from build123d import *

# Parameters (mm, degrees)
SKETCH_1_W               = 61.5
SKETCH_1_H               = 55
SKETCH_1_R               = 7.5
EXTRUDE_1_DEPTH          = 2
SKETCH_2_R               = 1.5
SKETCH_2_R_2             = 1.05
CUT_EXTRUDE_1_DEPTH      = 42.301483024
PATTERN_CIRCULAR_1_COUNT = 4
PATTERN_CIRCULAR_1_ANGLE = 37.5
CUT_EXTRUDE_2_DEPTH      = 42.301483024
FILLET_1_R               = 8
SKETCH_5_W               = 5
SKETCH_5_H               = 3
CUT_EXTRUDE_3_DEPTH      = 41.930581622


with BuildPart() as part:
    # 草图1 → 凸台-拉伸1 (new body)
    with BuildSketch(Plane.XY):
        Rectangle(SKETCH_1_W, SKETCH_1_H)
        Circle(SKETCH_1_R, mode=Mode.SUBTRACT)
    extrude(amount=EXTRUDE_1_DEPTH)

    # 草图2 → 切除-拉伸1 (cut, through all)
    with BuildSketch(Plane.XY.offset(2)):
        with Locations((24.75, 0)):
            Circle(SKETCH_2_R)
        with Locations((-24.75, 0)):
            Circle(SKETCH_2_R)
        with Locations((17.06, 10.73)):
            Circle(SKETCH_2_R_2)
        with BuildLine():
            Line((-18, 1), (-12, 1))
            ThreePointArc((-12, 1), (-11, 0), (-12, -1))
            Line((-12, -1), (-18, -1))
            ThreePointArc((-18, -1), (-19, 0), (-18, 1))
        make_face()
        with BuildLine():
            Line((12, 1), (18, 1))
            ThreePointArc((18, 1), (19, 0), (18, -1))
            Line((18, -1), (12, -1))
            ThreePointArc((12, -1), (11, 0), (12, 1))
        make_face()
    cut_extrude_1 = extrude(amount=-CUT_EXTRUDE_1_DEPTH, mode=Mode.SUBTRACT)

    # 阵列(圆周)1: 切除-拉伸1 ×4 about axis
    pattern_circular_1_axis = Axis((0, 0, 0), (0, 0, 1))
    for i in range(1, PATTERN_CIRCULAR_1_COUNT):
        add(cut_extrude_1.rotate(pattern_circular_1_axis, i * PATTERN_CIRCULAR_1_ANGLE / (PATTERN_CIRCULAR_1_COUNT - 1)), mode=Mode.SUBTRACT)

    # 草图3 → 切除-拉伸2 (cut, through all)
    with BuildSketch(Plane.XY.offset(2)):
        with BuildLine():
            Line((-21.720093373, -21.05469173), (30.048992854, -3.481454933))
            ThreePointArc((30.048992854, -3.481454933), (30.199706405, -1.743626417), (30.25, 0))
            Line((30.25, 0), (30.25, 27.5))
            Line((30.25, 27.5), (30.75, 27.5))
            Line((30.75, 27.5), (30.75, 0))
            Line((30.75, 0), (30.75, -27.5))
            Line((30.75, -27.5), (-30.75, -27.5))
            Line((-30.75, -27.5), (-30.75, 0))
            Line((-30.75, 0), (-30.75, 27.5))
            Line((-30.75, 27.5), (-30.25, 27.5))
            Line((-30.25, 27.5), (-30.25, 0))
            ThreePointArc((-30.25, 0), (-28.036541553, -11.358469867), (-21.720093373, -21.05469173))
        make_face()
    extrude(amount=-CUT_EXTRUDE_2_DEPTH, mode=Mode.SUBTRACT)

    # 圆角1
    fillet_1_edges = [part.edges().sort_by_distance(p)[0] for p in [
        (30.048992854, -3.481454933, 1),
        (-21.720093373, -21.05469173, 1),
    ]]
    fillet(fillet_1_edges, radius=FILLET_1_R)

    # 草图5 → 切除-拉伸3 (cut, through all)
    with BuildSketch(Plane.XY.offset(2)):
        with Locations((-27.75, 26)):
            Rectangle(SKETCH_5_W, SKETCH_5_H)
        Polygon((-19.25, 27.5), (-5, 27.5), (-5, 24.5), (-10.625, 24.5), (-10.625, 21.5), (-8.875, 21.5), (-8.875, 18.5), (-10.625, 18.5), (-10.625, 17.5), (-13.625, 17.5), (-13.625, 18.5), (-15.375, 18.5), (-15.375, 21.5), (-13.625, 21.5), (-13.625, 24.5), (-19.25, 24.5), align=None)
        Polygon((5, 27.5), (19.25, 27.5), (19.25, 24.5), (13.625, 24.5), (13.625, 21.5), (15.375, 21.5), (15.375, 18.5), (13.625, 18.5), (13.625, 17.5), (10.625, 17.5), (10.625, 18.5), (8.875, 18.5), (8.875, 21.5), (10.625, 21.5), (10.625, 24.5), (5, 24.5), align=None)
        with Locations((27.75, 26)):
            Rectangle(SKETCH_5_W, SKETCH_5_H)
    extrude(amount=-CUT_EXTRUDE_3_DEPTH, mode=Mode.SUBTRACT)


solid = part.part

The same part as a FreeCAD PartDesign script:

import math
import FreeCAD as App
import Part
import Sketcher

V = App.Vector
Q = App.Units.Quantity


def edges_at(feature, points):
    """Names of the edges that pass closest to the given points."""
    edges = feature.Shape.Edges
    near = lambda p: min(range(len(edges)), key=lambda i: edges[i].distToShape(Part.Vertex(*p))[0])
    return sorted({f"Edge{near(p) + 1}" for p in points})

doc = App.newDocument("Part")
body = doc.addObject("PartDesign::Body", "Body")

sketch1 = doc.addObject("Sketcher::SketchObject", "Sketch")
body.addObject(sketch1)
sketch1.AttachmentSupport = (doc.XY_Plane, [""])
sketch1.MapMode = "FlatFace"
sketch1.addGeometry(Part.LineSegment(V(-31, 28, 0), V(-31, -28, 0)), False)
sketch1.addGeometry(Part.LineSegment(V(-31, -28, 0), V(31, -28, 0)), False)
sketch1.addGeometry(Part.LineSegment(V(31, -28, 0), V(31, 28, 0)), False)
sketch1.addGeometry(Part.LineSegment(V(31, 28, 0), V(-31, 28, 0)), False)
sketch1.addGeometry(Part.Circle(V(0, 0, 0), V(0, 0, 1), 8), False)
sketch1.addConstraint(Sketcher.Constraint("Coincident", 0, 2, 1, 1))
sketch1.addConstraint(Sketcher.Constraint("Coincident", 1, 2, 2, 1))
sketch1.addConstraint(Sketcher.Constraint("Coincident", 2, 2, 3, 1))
sketch1.addConstraint(Sketcher.Constraint("Coincident", 3, 2, 0, 1))
sketch1.addConstraint(Sketcher.Constraint("Vertical", 0))
sketch1.addConstraint(Sketcher.Constraint("Horizontal", 1))
sketch1.addConstraint(Sketcher.Constraint("Vertical", 2))
sketch1.addConstraint(Sketcher.Constraint("Horizontal", 3))
sketch1.addConstraint(Sketcher.Constraint("Coincident", 4, 3, -1, 1))
sketch1.addConstraint(Sketcher.Constraint("Symmetric", 0, 2, 2, 2, -1, 1))
sketch1.addConstraint(Sketcher.Constraint("Diameter", 4, Q("15 mm")))
sketch1.addConstraint(Sketcher.Constraint("DistanceY", 0, 2, 0, 1, Q("55 mm")))
sketch1.addConstraint(Sketcher.Constraint("DistanceX", 1, 1, 1, 2, Q("61.5 mm")))
pad1 = doc.addObject("PartDesign::Pad", "Pad")
body.addObject(pad1)
pad1.Profile = sketch1
pad1.Length = 2

sketch2 = doc.addObject("Sketcher::SketchObject", "Sketch001")
body.addObject(sketch2)
sketch2.AttachmentSupport = (doc.XY_Plane, [""])
sketch2.MapMode = "FlatFace"
sketch2.AttachmentOffset = App.Placement(V(0, 0, 2), App.Rotation())
sketch2.addGeometry(Part.Circle(V(24.8, 0, 0), V(0, 0, 1), 1.5), False)
sketch2.addGeometry(Part.Circle(V(-24.8, 0, 0), V(0, 0, 1), 1.5), False)
sketch2.addGeometry(Part.Circle(V(17.1, 10.7, 0), V(0, 0, 1), 1.1), False)
sketch2.addGeometry(Part.LineSegment(V(-12, 1, 0), V(-18, 1, 0)), False)
sketch2.addGeometry(Part.ArcOfCircle(Part.Circle(V(-18, 0, 0), V(0, 0, 1), 1), math.radians(90), math.radians(270)), False)
sketch2.addGeometry(Part.LineSegment(V(-18, -1, 0), V(-12, -1, 0)), False)
sketch2.addGeometry(Part.ArcOfCircle(Part.Circle(V(-12, 0, 0), V(0, 0, 1), 1), math.radians(-90), math.radians(90)), False)
sketch2.addGeometry(Part.LineSegment(V(18, 1, 0), V(12, 1, 0)), False)
sketch2.addGeometry(Part.ArcOfCircle(Part.Circle(V(12, 0, 0), V(0, 0, 1), 1), math.radians(90), math.radians(270)), False)
sketch2.addGeometry(Part.LineSegment(V(12, -1, 0), V(18, -1, 0)), False)
sketch2.addGeometry(Part.ArcOfCircle(Part.Circle(V(18, 0, 0), V(0, 0, 1), 1), math.radians(-90), math.radians(90)), False)
sketch2.addConstraint(Sketcher.Constraint("Tangent", 3, 2, 4, 1))
sketch2.addConstraint(Sketcher.Constraint("Tangent", 4, 2, 5, 1))
sketch2.addConstraint(Sketcher.Constraint("Tangent", 5, 2, 6, 1))
sketch2.addConstraint(Sketcher.Constraint("Tangent", 6, 2, 3, 1))
sketch2.addConstraint(Sketcher.Constraint("Tangent", 7, 2, 8, 1))
sketch2.addConstraint(Sketcher.Constraint("Tangent", 8, 2, 9, 1))
sketch2.addConstraint(Sketcher.Constraint("Tangent", 9, 2, 10, 1))
sketch2.addConstraint(Sketcher.Constraint("Tangent", 10, 2, 7, 1))
sketch2.addConstraint(Sketcher.Constraint("Horizontal", 3))
sketch2.addConstraint(Sketcher.Constraint("Horizontal", 5))
sketch2.addConstraint(Sketcher.Constraint("Horizontal", 7))
sketch2.addConstraint(Sketcher.Constraint("Horizontal", 9))
sketch2.addConstraint(Sketcher.Constraint("Equal", 0, 1))
sketch2.addConstraint(Sketcher.Constraint("Equal", 6, 8))
sketch2.addConstraint(Sketcher.Constraint("Symmetric", 0, 3, 1, 3, -1, 1))
sketch2.addConstraint(Sketcher.Constraint("Symmetric", 6, 3, 8, 3, -1, 1))
sketch2.addConstraint(Sketcher.Constraint("Symmetric", 4, 3, 10, 3, -2))
sketch2.addConstraint(Sketcher.Constraint("PointOnObject", 0, 3, -1))
sketch2.addConstraint(Sketcher.Constraint("Diameter", 0, Q("3 mm")))
sketch2.addConstraint(Sketcher.Constraint("Radius", 4, Q("1 mm")))
sketch2.addConstraint(Sketcher.Constraint("Diameter", 2, Q("2.1 mm")))
sketch2.addConstraint(Sketcher.Constraint("DistanceX", 3, 2, 3, 1, Q("6 mm")))
sketch2.addConstraint(Sketcher.Constraint("DistanceX", 4, 3, -1, 1, Q("18 mm")))
sketch2.addConstraint(Sketcher.Constraint("DistanceX", 1, 3, 0, 3, Q("49.5 mm")))
sketch2.addConstraint(Sketcher.Constraint("DistanceX", -1, 1, 2, 3, Q("17.06 mm")))
sketch2.addConstraint(Sketcher.Constraint("DistanceY", -1, 1, 2, 3, Q("10.73 mm")))
pocket1 = doc.addObject("PartDesign::Pocket", "Pocket")
body.addObject(pocket1)
pocket1.Profile = sketch2
pocket1.Type = "ThroughAll"
doc.recompute()

polarpattern = doc.addObject("PartDesign::PolarPattern", "PolarPattern")
body.addObject(polarpattern)
polarpattern.Originals = [pocket1]
polarpattern.Axis = (doc.Z_Axis, [""])
polarpattern.Angle = 37.5
polarpattern.Occurrences = 4
body.Tip = polarpattern

sketch3 = doc.addObject("Sketcher::SketchObject", "Sketch002")
body.addObject(sketch3)
sketch3.AttachmentSupport = (doc.XY_Plane, [""])
sketch3.MapMode = "FlatFace"
sketch3.AttachmentOffset = App.Placement(V(0, 0, 2), App.Rotation())
sketch3.addGeometry(Part.LineSegment(V(30, -3.5, 0), V(-21.7, -21.1, 0)), False)
sketch3.addGeometry(Part.ArcOfCircle(Part.Circle(V(0, 0, 0), V(0, 0, 1), 30.3), math.radians(-180), math.radians(-136)), False)
sketch3.addGeometry(Part.LineSegment(V(-30.2, 0, 0), V(-30.2, 27.5, 0)), False)
sketch3.addGeometry(Part.LineSegment(V(-30.2, 27.5, 0), V(-30.8, 27.5, 0)), False)
sketch3.addGeometry(Part.LineSegment(V(-30.8, 27.5, 0), V(-30.8, -27.5, 0)), False)
sketch3.addGeometry(Part.LineSegment(V(-30.8, -27.5, 0), V(30.8, -27.5, 0)), False)
sketch3.addGeometry(Part.LineSegment(V(30.8, -27.5, 0), V(30.8, 27.5, 0)), False)
sketch3.addGeometry(Part.LineSegment(V(30.8, 27.5, 0), V(30.2, 27.5, 0)), False)
sketch3.addGeometry(Part.LineSegment(V(30.2, 27.5, 0), V(30.2, 0, 0)), False)
sketch3.addGeometry(Part.ArcOfCircle(Part.Circle(V(0, 0, 0), V(0, 0, 1), 30.2), math.radians(-6.61), math.radians(0)), False)
sketch3.addConstraint(Sketcher.Constraint("Coincident", 0, 2, 1, 2))
sketch3.addConstraint(Sketcher.Constraint("Tangent", 1, 1, 2, 1))
sketch3.addConstraint(Sketcher.Constraint("Coincident", 2, 2, 3, 1))
sketch3.addConstraint(Sketcher.Constraint("Coincident", 3, 2, 4, 1))
sketch3.addConstraint(Sketcher.Constraint("Coincident", 4, 2, 5, 1))
sketch3.addConstraint(Sketcher.Constraint("Coincident", 5, 2, 6, 1))
sketch3.addConstraint(Sketcher.Constraint("Coincident", 6, 2, 7, 1))
sketch3.addConstraint(Sketcher.Constraint("Coincident", 7, 2, 8, 1))
sketch3.addConstraint(Sketcher.Constraint("Tangent", 8, 2, 9, 2))
sketch3.addConstraint(Sketcher.Constraint("Coincident", 9, 1, 0, 1))
sketch3.addConstraint(Sketcher.Constraint("Vertical", 2))
sketch3.addConstraint(Sketcher.Constraint("Horizontal", 3))
sketch3.addConstraint(Sketcher.Constraint("Vertical", 4))
sketch3.addConstraint(Sketcher.Constraint("Horizontal", 5))
sketch3.addConstraint(Sketcher.Constraint("Vertical", 6))
sketch3.addConstraint(Sketcher.Constraint("Horizontal", 7))
sketch3.addConstraint(Sketcher.Constraint("Vertical", 8))
sketch3.addConstraint(Sketcher.Constraint("Coincident", 1, 3, -1, 1))
sketch3.addConstraint(Sketcher.Constraint("Coincident", 9, 3, -1, 1))
sketch3.addConstraint(Sketcher.Constraint("Equal", 1, 9))
sketch3.addConstraint(Sketcher.Constraint("Symmetric", 3, 2, 5, 2, -1, 1))
sketch3.addConstraint(Sketcher.Constraint("Horizontal", 3, 2, 6, 2))
sketch3.addConstraint(Sketcher.Constraint("DistanceY", 4, 2, 4, 1, Q("55 mm")))
sketch3.addConstraint(Sketcher.Constraint("Radius", 1, Q("30.25 mm")))
sketch3.addConstraint(Sketcher.Constraint("DistanceX", 3, 2, 3, 1, Q("0.5 mm")))
sketch3.addConstraint(Sketcher.Constraint("Angle", 0, Q("-161.25 deg")))
sketch3.addConstraint(Sketcher.Constraint("Distance", 0, Q("54.670439 mm")))
pocket2 = doc.addObject("PartDesign::Pocket", "Pocket001")
body.addObject(pocket2)
pocket2.Profile = sketch3
pocket2.Type = "ThroughAll"
doc.recompute()

fillet = doc.addObject("PartDesign::Fillet", "Fillet")
body.addObject(fillet)
fillet.Base = (pocket2, edges_at(pocket2, [(30.049, -3.481, 1), (-21.72, -21.055, 1)]))
fillet.Radius = 8

sketch4 = doc.addObject("Sketcher::SketchObject", "Sketch003")
body.addObject(sketch4)
sketch4.AttachmentSupport = (doc.XY_Plane, [""])
sketch4.MapMode = "FlatFace"
sketch4.AttachmentOffset = App.Placement(V(0, 0, 2), App.Rotation())
sketch4.addGeometry(Part.LineSegment(V(-30.2, 27.5, 0), V(-30.2, 24.5, 0)), False)
sketch4.addGeometry(Part.LineSegment(V(-30.2, 24.5, 0), V(-25.2, 24.5, 0)), False)
sketch4.addGeometry(Part.LineSegment(V(-25.2, 24.5, 0), V(-25.2, 27.5, 0)), False)
sketch4.addGeometry(Part.LineSegment(V(-25.2, 27.5, 0), V(-30.2, 27.5, 0)), False)
sketch4.addGeometry(Part.LineSegment(V(-5, 27.5, 0), V(-19.2, 27.5, 0)), False)
sketch4.addGeometry(Part.LineSegment(V(-19.2, 27.5, 0), V(-19.2, 24.5, 0)), False)
sketch4.addGeometry(Part.LineSegment(V(-19.2, 24.5, 0), V(-13.6, 24.5, 0)), False)
sketch4.addGeometry(Part.LineSegment(V(-13.6, 24.5, 0), V(-13.6, 21.5, 0)), False)
sketch4.addGeometry(Part.LineSegment(V(-13.6, 21.5, 0), V(-15.4, 21.5, 0)), False)
sketch4.addGeometry(Part.LineSegment(V(-15.4, 21.5, 0), V(-15.4, 18.5, 0)), False)
sketch4.addGeometry(Part.LineSegment(V(-15.4, 18.5, 0), V(-13.6, 18.5, 0)), False)
sketch4.addGeometry(Part.LineSegment(V(-13.6, 18.5, 0), V(-13.6, 17.5, 0)), False)
sketch4.addGeometry(Part.LineSegment(V(-13.6, 17.5, 0), V(-10.6, 17.5, 0)), False)
sketch4.addGeometry(Part.LineSegment(V(-10.6, 17.5, 0), V(-10.6, 18.5, 0)), False)
sketch4.addGeometry(Part.LineSegment(V(-10.6, 18.5, 0), V(-8.9, 18.5, 0)), False)
sketch4.addGeometry(Part.LineSegment(V(-8.9, 18.5, 0), V(-8.9, 21.5, 0)), False)
sketch4.addGeometry(Part.LineSegment(V(-8.9, 21.5, 0), V(-10.6, 21.5, 0)), False)
sketch4.addGeometry(Part.LineSegment(V(-10.6, 21.5, 0), V(-10.6, 24.5, 0)), False)
sketch4.addGeometry(Part.LineSegment(V(-10.6, 24.5, 0), V(-5, 24.5, 0)), False)
sketch4.addGeometry(Part.LineSegment(V(-5, 24.5, 0), V(-5, 27.5, 0)), False)
sketch4.addGeometry(Part.LineSegment(V(19.2, 27.5, 0), V(5, 27.5, 0)), False)
sketch4.addGeometry(Part.LineSegment(V(5, 27.5, 0), V(5, 24.5, 0)), False)
sketch4.addGeometry(Part.LineSegment(V(5, 24.5, 0), V(10.6, 24.5, 0)), False)
sketch4.addGeometry(Part.LineSegment(V(10.6, 24.5, 0), V(10.6, 21.5, 0)), False)
sketch4.addGeometry(Part.LineSegment(V(10.6, 21.5, 0), V(8.9, 21.5, 0)), False)
sketch4.addGeometry(Part.LineSegment(V(8.9, 21.5, 0), V(8.9, 18.5, 0)), False)
sketch4.addGeometry(Part.LineSegment(V(8.9, 18.5, 0), V(10.6, 18.5, 0)), False)
sketch4.addGeometry(Part.LineSegment(V(10.6, 18.5, 0), V(10.6, 17.5, 0)), False)
sketch4.addGeometry(Part.LineSegment(V(10.6, 17.5, 0), V(13.6, 17.5, 0)), False)
sketch4.addGeometry(Part.LineSegment(V(13.6, 17.5, 0), V(13.6, 18.5, 0)), False)
sketch4.addGeometry(Part.LineSegment(V(13.6, 18.5, 0), V(15.4, 18.5, 0)), False)
sketch4.addGeometry(Part.LineSegment(V(15.4, 18.5, 0), V(15.4, 21.5, 0)), False)
sketch4.addGeometry(Part.LineSegment(V(15.4, 21.5, 0), V(13.6, 21.5, 0)), False)
sketch4.addGeometry(Part.LineSegment(V(13.6, 21.5, 0), V(13.6, 24.5, 0)), False)
sketch4.addGeometry(Part.LineSegment(V(13.6, 24.5, 0), V(19.2, 24.5, 0)), False)
sketch4.addGeometry(Part.LineSegment(V(19.2, 24.5, 0), V(19.2, 27.5, 0)), False)
sketch4.addGeometry(Part.LineSegment(V(25.2, 27.5, 0), V(25.2, 24.5, 0)), False)
sketch4.addGeometry(Part.LineSegment(V(25.2, 24.5, 0), V(30.2, 24.5, 0)), False)
sketch4.addGeometry(Part.LineSegment(V(30.2, 24.5, 0), V(30.2, 27.5, 0)), False)
sketch4.addGeometry(Part.LineSegment(V(30.2, 27.5, 0), V(25.2, 27.5, 0)), False)
sketch4.addConstraint(Sketcher.Constraint("Coincident", 0, 2, 1, 1))
sketch4.addConstraint(Sketcher.Constraint("Coincident", 1, 2, 2, 1))
sketch4.addConstraint(Sketcher.Constraint("Coincident", 2, 2, 3, 1))
sketch4.addConstraint(Sketcher.Constraint("Coincident", 3, 2, 0, 1))
sketch4.addConstraint(Sketcher.Constraint("Coincident", 4, 2, 5, 1))
sketch4.addConstraint(Sketcher.Constraint("Coincident", 5, 2, 6, 1))
sketch4.addConstraint(Sketcher.Constraint("Coincident", 6, 2, 7, 1))
sketch4.addConstraint(Sketcher.Constraint("Coincident", 7, 2, 8, 1))
sketch4.addConstraint(Sketcher.Constraint("Coincident", 8, 2, 9, 1))
sketch4.addConstraint(Sketcher.Constraint("Coincident", 9, 2, 10, 1))
sketch4.addConstraint(Sketcher.Constraint("Coincident", 10, 2, 11, 1))
sketch4.addConstraint(Sketcher.Constraint("Coincident", 11, 2, 12, 1))
sketch4.addConstraint(Sketcher.Constraint("Coincident", 12, 2, 13, 1))
sketch4.addConstraint(Sketcher.Constraint("Coincident", 13, 2, 14, 1))
sketch4.addConstraint(Sketcher.Constraint("Coincident", 14, 2, 15, 1))
sketch4.addConstraint(Sketcher.Constraint("Coincident", 15, 2, 16, 1))
sketch4.addConstraint(Sketcher.Constraint("Coincident", 16, 2, 17, 1))
sketch4.addConstraint(Sketcher.Constraint("Coincident", 17, 2, 18, 1))
sketch4.addConstraint(Sketcher.Constraint("Coincident", 18, 2, 19, 1))
sketch4.addConstraint(Sketcher.Constraint("Coincident", 19, 2, 4, 1))
sketch4.addConstraint(Sketcher.Constraint("Coincident", 20, 2, 21, 1))
sketch4.addConstraint(Sketcher.Constraint("Coincident", 21, 2, 22, 1))
sketch4.addConstraint(Sketcher.Constraint("Coincident", 22, 2, 23, 1))
sketch4.addConstraint(Sketcher.Constraint("Coincident", 23, 2, 24, 1))
sketch4.addConstraint(Sketcher.Constraint("Coincident", 24, 2, 25, 1))
sketch4.addConstraint(Sketcher.Constraint("Coincident", 25, 2, 26, 1))
sketch4.addConstraint(Sketcher.Constraint("Coincident", 26, 2, 27, 1))
sketch4.addConstraint(Sketcher.Constraint("Coincident", 27, 2, 28, 1))
sketch4.addConstraint(Sketcher.Constraint("Coincident", 28, 2, 29, 1))
sketch4.addConstraint(Sketcher.Constraint("Coincident", 29, 2, 30, 1))
sketch4.addConstraint(Sketcher.Constraint("Coincident", 30, 2, 31, 1))
sketch4.addConstraint(Sketcher.Constraint("Coincident", 31, 2, 32, 1))
sketch4.addConstraint(Sketcher.Constraint("Coincident", 32, 2, 33, 1))
sketch4.addConstraint(Sketcher.Constraint("Coincident", 33, 2, 34, 1))
sketch4.addConstraint(Sketcher.Constraint("Coincident", 34, 2, 35, 1))
sketch4.addConstraint(Sketcher.Constraint("Coincident", 35, 2, 20, 1))
sketch4.addConstraint(Sketcher.Constraint("Coincident", 36, 2, 37, 1))
sketch4.addConstraint(Sketcher.Constraint("Coincident", 37, 2, 38, 1))
sketch4.addConstraint(Sketcher.Constraint("Coincident", 38, 2, 39, 1))
sketch4.addConstraint(Sketcher.Constraint("Coincident", 39, 2, 36, 1))
sketch4.addConstraint(Sketcher.Constraint("Vertical", 0))
sketch4.addConstraint(Sketcher.Constraint("Horizontal", 1))
sketch4.addConstraint(Sketcher.Constraint("Vertical", 2))
sketch4.addConstraint(Sketcher.Constraint("Horizontal", 3))
sketch4.addConstraint(Sketcher.Constraint("Horizontal", 4))
sketch4.addConstraint(Sketcher.Constraint("Vertical", 5))
sketch4.addConstraint(Sketcher.Constraint("Horizontal", 6))
sketch4.addConstraint(Sketcher.Constraint("Vertical", 7))
sketch4.addConstraint(Sketcher.Constraint("Horizontal", 8))
sketch4.addConstraint(Sketcher.Constraint("Vertical", 9))
sketch4.addConstraint(Sketcher.Constraint("Horizontal", 10))
sketch4.addConstraint(Sketcher.Constraint("Vertical", 11))
sketch4.addConstraint(Sketcher.Constraint("Horizontal", 12))
sketch4.addConstraint(Sketcher.Constraint("Vertical", 13))
sketch4.addConstraint(Sketcher.Constraint("Horizontal", 14))
sketch4.addConstraint(Sketcher.Constraint("Vertical", 15))
sketch4.addConstraint(Sketcher.Constraint("Horizontal", 16))
sketch4.addConstraint(Sketcher.Constraint("Vertical", 17))
sketch4.addConstraint(Sketcher.Constraint("Horizontal", 18))
sketch4.addConstraint(Sketcher.Constraint("Vertical", 19))
sketch4.addConstraint(Sketcher.Constraint("Horizontal", 20))
sketch4.addConstraint(Sketcher.Constraint("Vertical", 21))
sketch4.addConstraint(Sketcher.Constraint("Horizontal", 22))
sketch4.addConstraint(Sketcher.Constraint("Vertical", 23))
sketch4.addConstraint(Sketcher.Constraint("Horizontal", 24))
sketch4.addConstraint(Sketcher.Constraint("Vertical", 25))
sketch4.addConstraint(Sketcher.Constraint("Horizontal", 26))
sketch4.addConstraint(Sketcher.Constraint("Vertical", 27))
sketch4.addConstraint(Sketcher.Constraint("Horizontal", 28))
sketch4.addConstraint(Sketcher.Constraint("Vertical", 29))
sketch4.addConstraint(Sketcher.Constraint("Horizontal", 30))
sketch4.addConstraint(Sketcher.Constraint("Vertical", 31))
sketch4.addConstraint(Sketcher.Constraint("Horizontal", 32))
sketch4.addConstraint(Sketcher.Constraint("Vertical", 33))
sketch4.addConstraint(Sketcher.Constraint("Horizontal", 34))
sketch4.addConstraint(Sketcher.Constraint("Vertical", 35))
sketch4.addConstraint(Sketcher.Constraint("Vertical", 36))
sketch4.addConstraint(Sketcher.Constraint("Horizontal", 37))
sketch4.addConstraint(Sketcher.Constraint("Vertical", 38))
sketch4.addConstraint(Sketcher.Constraint("Horizontal", 39))
sketch4.addConstraint(Sketcher.Constraint("Symmetric", 19, 2, 20, 2, -2))
sketch4.addConstraint(Sketcher.Constraint("Symmetric", 17, 2, 22, 2, -2))
sketch4.addConstraint(Sketcher.Constraint("Symmetric", 15, 2, 24, 2, -2))
sketch4.addConstraint(Sketcher.Constraint("Symmetric", 13, 2, 26, 2, -2))
sketch4.addConstraint(Sketcher.Constraint("Symmetric", 11, 2, 28, 2, -2))
sketch4.addConstraint(Sketcher.Constraint("Symmetric", 9, 2, 30, 2, -2))
sketch4.addConstraint(Sketcher.Constraint("Symmetric", 7, 2, 32, 2, -2))
sketch4.addConstraint(Sketcher.Constraint("Symmetric", 5, 2, 34, 2, -2))
sketch4.addConstraint(Sketcher.Constraint("Symmetric", 1, 2, 36, 2, -2))
sketch4.addConstraint(Sketcher.Constraint("Symmetric", 3, 2, 38, 2, -2))
sketch4.addConstraint(Sketcher.Constraint("Horizontal", 3, 2, 4, 2))
sketch4.addConstraint(Sketcher.Constraint("Horizontal", 1, 2, 5, 2))
sketch4.addConstraint(Sketcher.Constraint("Horizontal", 10, 2, 13, 2))
sketch4.addConstraint(Sketcher.Constraint("Horizontal", 8, 2, 15, 2))
sketch4.addConstraint(Sketcher.Constraint("Horizontal", 6, 2, 17, 2))
sketch4.addConstraint(Sketcher.Constraint("Vertical", 7, 2, 10, 2))
sketch4.addConstraint(Sketcher.Constraint("Vertical", 13, 2, 16, 2))
sketch4.addConstraint(Sketcher.Constraint("Equal", 10, 14))
sketch4.addConstraint(Sketcher.Constraint("Equal", 6, 18))
sketch4.addConstraint(Sketcher.Constraint("Equal", 28, 0))
sketch4.addConstraint(Sketcher.Constraint("Equal", 5, 7))
sketch4.addConstraint(Sketcher.Constraint("Equal", 7, 9))
sketch4.addConstraint(Sketcher.Constraint("DistanceX", 1, 1, 1, 2, Q("5 mm")))
sketch4.addConstraint(Sketcher.Constraint("DistanceX", 12, 1, 12, 2, Q("3 mm")))
sketch4.addConstraint(Sketcher.Constraint("DistanceY", 11, 2, 11, 1, Q("1 mm")))
sketch4.addConstraint(Sketcher.Constraint("DistanceX", 18, 2, -1, 1, Q("5 mm")))
sketch4.addConstraint(Sketcher.Constraint("DistanceX", 2, 2, 4, 2, Q("6 mm")))
sketch4.addConstraint(Sketcher.Constraint("DistanceX", 4, 2, 4, 1, Q("14.25 mm")))
sketch4.addConstraint(Sketcher.Constraint("DistanceX", 8, 2, 8, 1, Q("1.75 mm")))
sketch4.addConstraint(Sketcher.Constraint("DistanceY", -1, 1, 0, 2, Q("24.5 mm")))
pocket3 = doc.addObject("PartDesign::Pocket", "Pocket002")
body.addObject(pocket3)
pocket3.Profile = sketch4
pocket3.Type = "ThroughAll"

doc.recompute()
